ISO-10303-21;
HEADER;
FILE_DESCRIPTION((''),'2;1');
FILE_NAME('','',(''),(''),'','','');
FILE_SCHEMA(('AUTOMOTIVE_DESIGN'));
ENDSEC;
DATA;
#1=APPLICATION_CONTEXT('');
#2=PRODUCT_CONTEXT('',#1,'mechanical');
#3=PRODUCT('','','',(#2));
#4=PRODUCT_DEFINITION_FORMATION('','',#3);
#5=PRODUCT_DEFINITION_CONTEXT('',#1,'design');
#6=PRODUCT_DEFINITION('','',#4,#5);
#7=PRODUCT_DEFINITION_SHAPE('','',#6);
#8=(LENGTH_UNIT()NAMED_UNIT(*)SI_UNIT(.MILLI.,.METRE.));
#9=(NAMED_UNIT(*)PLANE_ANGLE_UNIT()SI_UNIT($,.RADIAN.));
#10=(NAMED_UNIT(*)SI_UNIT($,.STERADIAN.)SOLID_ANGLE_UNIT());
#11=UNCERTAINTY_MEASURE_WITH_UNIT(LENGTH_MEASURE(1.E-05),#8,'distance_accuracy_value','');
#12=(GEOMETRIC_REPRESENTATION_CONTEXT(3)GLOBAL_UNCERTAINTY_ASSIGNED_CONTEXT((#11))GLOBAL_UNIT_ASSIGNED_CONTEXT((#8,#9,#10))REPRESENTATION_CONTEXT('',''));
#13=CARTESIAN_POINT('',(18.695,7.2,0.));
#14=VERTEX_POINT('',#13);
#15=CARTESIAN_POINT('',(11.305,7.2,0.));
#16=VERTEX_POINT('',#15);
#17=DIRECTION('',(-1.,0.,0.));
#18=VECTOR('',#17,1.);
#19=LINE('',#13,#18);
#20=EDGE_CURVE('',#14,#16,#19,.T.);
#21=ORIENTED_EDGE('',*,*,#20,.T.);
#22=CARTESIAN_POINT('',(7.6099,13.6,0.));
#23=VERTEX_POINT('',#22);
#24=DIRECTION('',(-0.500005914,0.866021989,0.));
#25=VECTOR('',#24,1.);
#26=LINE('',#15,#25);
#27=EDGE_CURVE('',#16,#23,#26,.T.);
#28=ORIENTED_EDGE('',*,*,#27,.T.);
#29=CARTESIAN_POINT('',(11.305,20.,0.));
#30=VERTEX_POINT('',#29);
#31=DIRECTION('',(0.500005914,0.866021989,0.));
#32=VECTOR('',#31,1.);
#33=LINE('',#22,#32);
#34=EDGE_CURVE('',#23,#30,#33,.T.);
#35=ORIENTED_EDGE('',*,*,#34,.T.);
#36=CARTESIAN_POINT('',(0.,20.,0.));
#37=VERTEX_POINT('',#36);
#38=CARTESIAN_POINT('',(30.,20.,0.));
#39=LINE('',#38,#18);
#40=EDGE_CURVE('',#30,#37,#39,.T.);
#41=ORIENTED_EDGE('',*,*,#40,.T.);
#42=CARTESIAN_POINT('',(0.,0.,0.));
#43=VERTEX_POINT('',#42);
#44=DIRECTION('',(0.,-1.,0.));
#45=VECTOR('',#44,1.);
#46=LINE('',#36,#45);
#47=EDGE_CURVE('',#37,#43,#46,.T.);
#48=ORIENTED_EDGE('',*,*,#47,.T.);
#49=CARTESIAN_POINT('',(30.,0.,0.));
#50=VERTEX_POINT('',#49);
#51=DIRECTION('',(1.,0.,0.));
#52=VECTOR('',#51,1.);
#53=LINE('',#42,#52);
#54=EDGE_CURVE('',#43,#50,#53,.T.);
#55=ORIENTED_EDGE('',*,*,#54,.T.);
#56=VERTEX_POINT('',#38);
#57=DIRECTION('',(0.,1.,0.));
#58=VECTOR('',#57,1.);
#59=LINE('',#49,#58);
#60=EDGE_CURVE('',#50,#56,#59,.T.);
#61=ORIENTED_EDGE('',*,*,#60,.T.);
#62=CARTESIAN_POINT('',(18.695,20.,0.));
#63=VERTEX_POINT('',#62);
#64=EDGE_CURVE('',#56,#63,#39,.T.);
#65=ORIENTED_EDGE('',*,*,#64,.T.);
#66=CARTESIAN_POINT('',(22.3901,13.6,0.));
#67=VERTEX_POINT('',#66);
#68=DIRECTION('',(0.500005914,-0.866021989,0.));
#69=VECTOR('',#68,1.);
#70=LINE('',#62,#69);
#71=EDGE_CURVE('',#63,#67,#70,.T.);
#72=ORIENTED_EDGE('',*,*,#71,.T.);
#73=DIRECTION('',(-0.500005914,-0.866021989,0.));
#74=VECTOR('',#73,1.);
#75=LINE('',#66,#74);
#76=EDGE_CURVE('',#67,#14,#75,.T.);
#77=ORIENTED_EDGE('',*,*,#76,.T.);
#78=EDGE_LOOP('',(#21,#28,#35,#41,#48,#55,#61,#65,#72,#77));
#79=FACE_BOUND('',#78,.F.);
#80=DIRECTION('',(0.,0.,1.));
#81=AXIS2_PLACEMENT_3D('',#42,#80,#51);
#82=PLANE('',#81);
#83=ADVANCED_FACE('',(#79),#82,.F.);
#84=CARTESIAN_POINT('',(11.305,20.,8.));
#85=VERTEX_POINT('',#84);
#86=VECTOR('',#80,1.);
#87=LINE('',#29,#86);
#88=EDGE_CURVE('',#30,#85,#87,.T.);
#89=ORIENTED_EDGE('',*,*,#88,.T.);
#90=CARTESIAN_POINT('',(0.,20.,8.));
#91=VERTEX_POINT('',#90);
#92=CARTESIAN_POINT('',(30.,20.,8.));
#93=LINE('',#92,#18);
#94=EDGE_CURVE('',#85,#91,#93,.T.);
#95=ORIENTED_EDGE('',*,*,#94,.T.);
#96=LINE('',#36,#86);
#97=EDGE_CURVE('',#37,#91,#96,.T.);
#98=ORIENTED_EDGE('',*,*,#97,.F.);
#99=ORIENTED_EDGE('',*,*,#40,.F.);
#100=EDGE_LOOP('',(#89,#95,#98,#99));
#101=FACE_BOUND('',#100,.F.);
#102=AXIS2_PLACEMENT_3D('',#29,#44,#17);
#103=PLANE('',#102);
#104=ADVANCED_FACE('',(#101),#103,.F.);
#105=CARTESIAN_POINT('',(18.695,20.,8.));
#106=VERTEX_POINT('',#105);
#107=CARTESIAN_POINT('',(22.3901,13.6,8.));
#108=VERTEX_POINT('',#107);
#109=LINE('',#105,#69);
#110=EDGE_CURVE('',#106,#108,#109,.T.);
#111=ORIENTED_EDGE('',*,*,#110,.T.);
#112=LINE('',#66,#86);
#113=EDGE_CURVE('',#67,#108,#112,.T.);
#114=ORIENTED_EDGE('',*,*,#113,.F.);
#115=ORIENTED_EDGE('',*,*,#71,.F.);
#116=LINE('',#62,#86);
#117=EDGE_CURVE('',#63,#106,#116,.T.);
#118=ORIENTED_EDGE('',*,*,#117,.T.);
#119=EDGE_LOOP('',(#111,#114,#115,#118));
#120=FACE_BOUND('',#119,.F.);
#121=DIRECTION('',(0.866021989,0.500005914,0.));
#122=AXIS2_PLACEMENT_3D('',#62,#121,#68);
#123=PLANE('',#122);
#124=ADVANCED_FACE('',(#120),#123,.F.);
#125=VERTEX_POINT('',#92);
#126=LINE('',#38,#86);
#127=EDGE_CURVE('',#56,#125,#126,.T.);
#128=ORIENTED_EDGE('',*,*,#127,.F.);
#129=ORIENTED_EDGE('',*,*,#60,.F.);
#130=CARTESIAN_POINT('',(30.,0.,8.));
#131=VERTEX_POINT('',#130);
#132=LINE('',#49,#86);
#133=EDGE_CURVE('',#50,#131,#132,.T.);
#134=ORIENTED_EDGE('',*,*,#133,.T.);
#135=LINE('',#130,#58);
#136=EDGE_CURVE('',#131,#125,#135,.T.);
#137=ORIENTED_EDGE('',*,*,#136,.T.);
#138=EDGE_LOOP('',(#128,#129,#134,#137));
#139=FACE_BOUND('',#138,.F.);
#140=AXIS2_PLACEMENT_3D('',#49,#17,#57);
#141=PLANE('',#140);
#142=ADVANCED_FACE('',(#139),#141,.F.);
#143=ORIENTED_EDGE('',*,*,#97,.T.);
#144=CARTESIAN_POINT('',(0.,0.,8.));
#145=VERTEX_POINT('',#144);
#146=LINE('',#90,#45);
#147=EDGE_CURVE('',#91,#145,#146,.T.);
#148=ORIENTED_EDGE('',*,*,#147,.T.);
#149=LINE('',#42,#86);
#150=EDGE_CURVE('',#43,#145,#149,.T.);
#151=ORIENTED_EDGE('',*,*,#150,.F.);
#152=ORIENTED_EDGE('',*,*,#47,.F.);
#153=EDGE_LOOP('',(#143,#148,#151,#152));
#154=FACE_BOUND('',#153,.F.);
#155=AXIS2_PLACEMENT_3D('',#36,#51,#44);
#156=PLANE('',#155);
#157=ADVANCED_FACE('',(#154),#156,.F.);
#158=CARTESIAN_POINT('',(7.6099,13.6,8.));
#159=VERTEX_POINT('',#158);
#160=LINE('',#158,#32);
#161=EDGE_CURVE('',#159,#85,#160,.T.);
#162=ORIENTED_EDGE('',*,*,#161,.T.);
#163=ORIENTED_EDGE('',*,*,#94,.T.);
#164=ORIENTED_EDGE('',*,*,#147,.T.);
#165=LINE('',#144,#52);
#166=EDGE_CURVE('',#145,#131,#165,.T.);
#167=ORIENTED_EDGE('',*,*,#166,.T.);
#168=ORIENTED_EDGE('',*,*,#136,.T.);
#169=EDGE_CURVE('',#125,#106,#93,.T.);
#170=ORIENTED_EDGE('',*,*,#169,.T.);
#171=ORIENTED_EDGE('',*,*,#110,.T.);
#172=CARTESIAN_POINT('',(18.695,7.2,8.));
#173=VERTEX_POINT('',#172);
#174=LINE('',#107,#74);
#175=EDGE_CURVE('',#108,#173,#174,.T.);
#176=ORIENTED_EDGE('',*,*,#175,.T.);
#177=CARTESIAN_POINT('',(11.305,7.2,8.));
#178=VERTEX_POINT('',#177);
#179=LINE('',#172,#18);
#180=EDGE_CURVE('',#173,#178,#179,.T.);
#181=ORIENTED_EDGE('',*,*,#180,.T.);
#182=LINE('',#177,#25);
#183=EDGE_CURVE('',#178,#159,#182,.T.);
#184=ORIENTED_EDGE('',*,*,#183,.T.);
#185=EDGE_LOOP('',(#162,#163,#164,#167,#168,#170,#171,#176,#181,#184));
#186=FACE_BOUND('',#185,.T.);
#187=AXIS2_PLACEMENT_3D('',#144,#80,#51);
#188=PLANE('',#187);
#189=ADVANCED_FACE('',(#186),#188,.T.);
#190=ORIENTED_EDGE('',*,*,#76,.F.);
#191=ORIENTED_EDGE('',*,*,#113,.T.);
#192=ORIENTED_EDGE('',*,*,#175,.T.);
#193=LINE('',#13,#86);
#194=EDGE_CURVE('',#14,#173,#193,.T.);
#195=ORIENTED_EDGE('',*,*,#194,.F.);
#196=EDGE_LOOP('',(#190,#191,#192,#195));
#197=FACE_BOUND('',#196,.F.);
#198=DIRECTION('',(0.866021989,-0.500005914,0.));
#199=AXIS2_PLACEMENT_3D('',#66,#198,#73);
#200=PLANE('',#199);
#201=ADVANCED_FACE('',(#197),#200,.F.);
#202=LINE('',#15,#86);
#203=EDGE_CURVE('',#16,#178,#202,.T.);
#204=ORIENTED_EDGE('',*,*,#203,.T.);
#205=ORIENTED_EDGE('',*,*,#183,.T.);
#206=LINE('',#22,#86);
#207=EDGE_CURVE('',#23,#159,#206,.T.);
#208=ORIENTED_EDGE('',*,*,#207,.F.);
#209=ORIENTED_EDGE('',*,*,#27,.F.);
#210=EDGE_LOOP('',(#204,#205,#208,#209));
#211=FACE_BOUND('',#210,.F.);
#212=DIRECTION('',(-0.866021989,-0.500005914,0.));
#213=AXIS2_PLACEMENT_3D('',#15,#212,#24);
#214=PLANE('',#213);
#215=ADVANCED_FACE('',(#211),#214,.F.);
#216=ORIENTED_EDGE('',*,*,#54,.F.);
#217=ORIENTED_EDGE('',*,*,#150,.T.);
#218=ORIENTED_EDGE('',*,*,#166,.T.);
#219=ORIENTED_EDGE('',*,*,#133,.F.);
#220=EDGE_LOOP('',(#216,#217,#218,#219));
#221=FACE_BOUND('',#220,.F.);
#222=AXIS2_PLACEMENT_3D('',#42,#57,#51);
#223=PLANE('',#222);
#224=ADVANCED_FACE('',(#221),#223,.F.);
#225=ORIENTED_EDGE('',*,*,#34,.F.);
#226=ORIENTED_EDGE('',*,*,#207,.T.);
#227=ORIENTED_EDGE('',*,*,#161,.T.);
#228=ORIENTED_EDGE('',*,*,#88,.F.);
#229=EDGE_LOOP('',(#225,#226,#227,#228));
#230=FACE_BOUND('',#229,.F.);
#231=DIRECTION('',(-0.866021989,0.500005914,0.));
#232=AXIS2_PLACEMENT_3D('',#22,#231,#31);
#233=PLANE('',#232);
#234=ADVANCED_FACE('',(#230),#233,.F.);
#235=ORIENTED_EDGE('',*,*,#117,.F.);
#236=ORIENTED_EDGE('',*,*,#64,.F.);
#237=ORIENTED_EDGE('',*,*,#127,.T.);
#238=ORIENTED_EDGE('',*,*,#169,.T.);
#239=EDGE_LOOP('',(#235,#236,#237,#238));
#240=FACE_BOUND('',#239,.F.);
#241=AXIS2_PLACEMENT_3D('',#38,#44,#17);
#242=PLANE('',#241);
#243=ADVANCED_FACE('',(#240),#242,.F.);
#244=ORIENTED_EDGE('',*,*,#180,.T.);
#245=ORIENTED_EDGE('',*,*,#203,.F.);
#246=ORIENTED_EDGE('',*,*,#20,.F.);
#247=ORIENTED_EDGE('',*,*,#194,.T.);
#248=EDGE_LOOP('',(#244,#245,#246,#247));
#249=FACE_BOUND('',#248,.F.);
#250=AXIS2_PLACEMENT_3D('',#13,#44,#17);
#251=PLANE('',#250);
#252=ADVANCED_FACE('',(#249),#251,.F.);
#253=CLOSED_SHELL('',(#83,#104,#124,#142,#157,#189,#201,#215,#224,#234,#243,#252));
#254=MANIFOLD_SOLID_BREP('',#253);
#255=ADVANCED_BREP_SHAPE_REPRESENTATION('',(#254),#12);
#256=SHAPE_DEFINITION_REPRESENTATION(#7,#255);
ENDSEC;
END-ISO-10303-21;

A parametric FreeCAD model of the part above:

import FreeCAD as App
import Part
import Sketcher
Q = App.Units.Quantity

doc = App.newDocument("Part")
body = doc.addObject("PartDesign::Body", "Body")

sketch1 = body.newObject("Sketcher::SketchObject", "Sketch")
sketch1.AttachmentSupport = (doc.getObject("XY_Plane"), [""])
sketch1.MapMode = "FlatFace"
sketch1.addGeometry(Part.LineSegment(App.Vector(0, 20, 0), App.Vector(0, 0, 0)), False)
sketch1.addGeometry(Part.LineSegment(App.Vector(0, 0, 0), App.Vector(30, 0, 0)), False)
sketch1.addGeometry(Part.LineSegment(App.Vector(30, 0, 0), App.Vector(30, 20, 0)), False)
sketch1.addGeometry(Part.LineSegment(App.Vector(30, 20, 0), App.Vector(18.695, 20, 0)), False)
sketch1.addGeometry(Part.LineSegment(App.Vector(18.695, 20, 0), App.Vector(22.3901, 13.6, 0)), False)
sketch1.addGeometry(Part.LineSegment(App.Vector(22.3901, 13.6, 0), App.Vector(18.695, 7.2, 0)), False)
sketch1.addGeometry(Part.LineSegment(App.Vector(18.695, 7.2, 0), App.Vector(11.305, 7.2, 0)), False)
sketch1.addGeometry(Part.LineSegment(App.Vector(11.305, 7.2, 0), App.Vector(7.6099, 13.6, 0)), False)
sketch1.addGeometry(Part.LineSegment(App.Vector(7.6099, 13.6, 0), App.Vector(11.305, 20, 0)), False)
sketch1.addGeometry(Part.LineSegment(App.Vector(11.305, 20, 0), App.Vector(0, 20, 0)), False)
sketch1.addConstraint(Sketcher.Constraint("Coincident", 0, 2, 1, 1))
sketch1.addConstraint(Sketcher.Constraint("Coincident", 1, 2, 2, 1))
sketch1.addConstraint(Sketcher.Constraint("Coincident", 2, 2, 3, 1))
sketch1.addConstraint(Sketcher.Constraint("Coincident", 3, 2, 4, 1))
sketch1.addConstraint(Sketcher.Constraint("Coincident", 4, 2, 5, 1))
sketch1.addConstraint(Sketcher.Constraint("Coincident", 5, 2, 6, 1))
sketch1.addConstraint(Sketcher.Constraint("Coincident", 6, 2, 7, 1))
sketch1.addConstraint(Sketcher.Constraint("Coincident", 7, 2, 8, 1))
sketch1.addConstraint(Sketcher.Constraint("Coincident", 8, 2, 9, 1))
sketch1.addConstraint(Sketcher.Constraint("Coincident", 9, 2, 0, 1))
sketch1.addConstraint(Sketcher.Constraint("Vertical", 0))
sketch1.addConstraint(Sketcher.Constraint("Horizontal", 1))
sketch1.addConstraint(Sketcher.Constraint("Vertical", 2))
sketch1.addConstraint(Sketcher.Constraint("Horizontal", 3))
sketch1.addConstraint(Sketcher.Constraint("Horizontal", 6))
sketch1.addConstraint(Sketcher.Constraint("Horizontal", 9))
sketch1.addConstraint(Sketcher.Constraint("Coincident", 0, 2, -1, 1))
sketch1.addConstraint(Sketcher.Constraint("Parallel", 4, 7))
sketch1.addConstraint(Sketcher.Constraint("Parallel", 5, 8))
sketch1.addConstraint(Sketcher.Constraint("Horizontal", 4, 2, 7, 2))
sketch1.addConstraint(Sketcher.Constraint("Horizontal", 3, 2, 8, 2))
sketch1.addConstraint(Sketcher.Constraint("Vertical", 3, 2, 5, 2))
sketch1.addConstraint(Sketcher.Constraint("Vertical", 6, 2, 8, 2))
sketch1.addConstraint(Sketcher.Constraint("Equal", 3, 9))
sketch1.addConstraint(Sketcher.Constraint("DistanceX", 1, 1, 1, 2, 30.0))
sketch1.addConstraint(Sketcher.Constraint("DistanceY", 0, 2, 0, 1, 20.0))
sketch1.addConstraint(Sketcher.Constraint("DistanceY", 5, 2, 3, 2, 12.8))
sketch1.addConstraint(Sketcher.Constraint("Angle", 4, Q("-59.9996 deg")))
sketch1.addConstraint(Sketcher.Constraint("DistanceX", 6, 2, 6, 1, 7.39))
pad1 = body.newObject("PartDesign::Pad", "Pad")
pad1.Profile = sketch1
pad1.Length = 8

doc.recompute()
